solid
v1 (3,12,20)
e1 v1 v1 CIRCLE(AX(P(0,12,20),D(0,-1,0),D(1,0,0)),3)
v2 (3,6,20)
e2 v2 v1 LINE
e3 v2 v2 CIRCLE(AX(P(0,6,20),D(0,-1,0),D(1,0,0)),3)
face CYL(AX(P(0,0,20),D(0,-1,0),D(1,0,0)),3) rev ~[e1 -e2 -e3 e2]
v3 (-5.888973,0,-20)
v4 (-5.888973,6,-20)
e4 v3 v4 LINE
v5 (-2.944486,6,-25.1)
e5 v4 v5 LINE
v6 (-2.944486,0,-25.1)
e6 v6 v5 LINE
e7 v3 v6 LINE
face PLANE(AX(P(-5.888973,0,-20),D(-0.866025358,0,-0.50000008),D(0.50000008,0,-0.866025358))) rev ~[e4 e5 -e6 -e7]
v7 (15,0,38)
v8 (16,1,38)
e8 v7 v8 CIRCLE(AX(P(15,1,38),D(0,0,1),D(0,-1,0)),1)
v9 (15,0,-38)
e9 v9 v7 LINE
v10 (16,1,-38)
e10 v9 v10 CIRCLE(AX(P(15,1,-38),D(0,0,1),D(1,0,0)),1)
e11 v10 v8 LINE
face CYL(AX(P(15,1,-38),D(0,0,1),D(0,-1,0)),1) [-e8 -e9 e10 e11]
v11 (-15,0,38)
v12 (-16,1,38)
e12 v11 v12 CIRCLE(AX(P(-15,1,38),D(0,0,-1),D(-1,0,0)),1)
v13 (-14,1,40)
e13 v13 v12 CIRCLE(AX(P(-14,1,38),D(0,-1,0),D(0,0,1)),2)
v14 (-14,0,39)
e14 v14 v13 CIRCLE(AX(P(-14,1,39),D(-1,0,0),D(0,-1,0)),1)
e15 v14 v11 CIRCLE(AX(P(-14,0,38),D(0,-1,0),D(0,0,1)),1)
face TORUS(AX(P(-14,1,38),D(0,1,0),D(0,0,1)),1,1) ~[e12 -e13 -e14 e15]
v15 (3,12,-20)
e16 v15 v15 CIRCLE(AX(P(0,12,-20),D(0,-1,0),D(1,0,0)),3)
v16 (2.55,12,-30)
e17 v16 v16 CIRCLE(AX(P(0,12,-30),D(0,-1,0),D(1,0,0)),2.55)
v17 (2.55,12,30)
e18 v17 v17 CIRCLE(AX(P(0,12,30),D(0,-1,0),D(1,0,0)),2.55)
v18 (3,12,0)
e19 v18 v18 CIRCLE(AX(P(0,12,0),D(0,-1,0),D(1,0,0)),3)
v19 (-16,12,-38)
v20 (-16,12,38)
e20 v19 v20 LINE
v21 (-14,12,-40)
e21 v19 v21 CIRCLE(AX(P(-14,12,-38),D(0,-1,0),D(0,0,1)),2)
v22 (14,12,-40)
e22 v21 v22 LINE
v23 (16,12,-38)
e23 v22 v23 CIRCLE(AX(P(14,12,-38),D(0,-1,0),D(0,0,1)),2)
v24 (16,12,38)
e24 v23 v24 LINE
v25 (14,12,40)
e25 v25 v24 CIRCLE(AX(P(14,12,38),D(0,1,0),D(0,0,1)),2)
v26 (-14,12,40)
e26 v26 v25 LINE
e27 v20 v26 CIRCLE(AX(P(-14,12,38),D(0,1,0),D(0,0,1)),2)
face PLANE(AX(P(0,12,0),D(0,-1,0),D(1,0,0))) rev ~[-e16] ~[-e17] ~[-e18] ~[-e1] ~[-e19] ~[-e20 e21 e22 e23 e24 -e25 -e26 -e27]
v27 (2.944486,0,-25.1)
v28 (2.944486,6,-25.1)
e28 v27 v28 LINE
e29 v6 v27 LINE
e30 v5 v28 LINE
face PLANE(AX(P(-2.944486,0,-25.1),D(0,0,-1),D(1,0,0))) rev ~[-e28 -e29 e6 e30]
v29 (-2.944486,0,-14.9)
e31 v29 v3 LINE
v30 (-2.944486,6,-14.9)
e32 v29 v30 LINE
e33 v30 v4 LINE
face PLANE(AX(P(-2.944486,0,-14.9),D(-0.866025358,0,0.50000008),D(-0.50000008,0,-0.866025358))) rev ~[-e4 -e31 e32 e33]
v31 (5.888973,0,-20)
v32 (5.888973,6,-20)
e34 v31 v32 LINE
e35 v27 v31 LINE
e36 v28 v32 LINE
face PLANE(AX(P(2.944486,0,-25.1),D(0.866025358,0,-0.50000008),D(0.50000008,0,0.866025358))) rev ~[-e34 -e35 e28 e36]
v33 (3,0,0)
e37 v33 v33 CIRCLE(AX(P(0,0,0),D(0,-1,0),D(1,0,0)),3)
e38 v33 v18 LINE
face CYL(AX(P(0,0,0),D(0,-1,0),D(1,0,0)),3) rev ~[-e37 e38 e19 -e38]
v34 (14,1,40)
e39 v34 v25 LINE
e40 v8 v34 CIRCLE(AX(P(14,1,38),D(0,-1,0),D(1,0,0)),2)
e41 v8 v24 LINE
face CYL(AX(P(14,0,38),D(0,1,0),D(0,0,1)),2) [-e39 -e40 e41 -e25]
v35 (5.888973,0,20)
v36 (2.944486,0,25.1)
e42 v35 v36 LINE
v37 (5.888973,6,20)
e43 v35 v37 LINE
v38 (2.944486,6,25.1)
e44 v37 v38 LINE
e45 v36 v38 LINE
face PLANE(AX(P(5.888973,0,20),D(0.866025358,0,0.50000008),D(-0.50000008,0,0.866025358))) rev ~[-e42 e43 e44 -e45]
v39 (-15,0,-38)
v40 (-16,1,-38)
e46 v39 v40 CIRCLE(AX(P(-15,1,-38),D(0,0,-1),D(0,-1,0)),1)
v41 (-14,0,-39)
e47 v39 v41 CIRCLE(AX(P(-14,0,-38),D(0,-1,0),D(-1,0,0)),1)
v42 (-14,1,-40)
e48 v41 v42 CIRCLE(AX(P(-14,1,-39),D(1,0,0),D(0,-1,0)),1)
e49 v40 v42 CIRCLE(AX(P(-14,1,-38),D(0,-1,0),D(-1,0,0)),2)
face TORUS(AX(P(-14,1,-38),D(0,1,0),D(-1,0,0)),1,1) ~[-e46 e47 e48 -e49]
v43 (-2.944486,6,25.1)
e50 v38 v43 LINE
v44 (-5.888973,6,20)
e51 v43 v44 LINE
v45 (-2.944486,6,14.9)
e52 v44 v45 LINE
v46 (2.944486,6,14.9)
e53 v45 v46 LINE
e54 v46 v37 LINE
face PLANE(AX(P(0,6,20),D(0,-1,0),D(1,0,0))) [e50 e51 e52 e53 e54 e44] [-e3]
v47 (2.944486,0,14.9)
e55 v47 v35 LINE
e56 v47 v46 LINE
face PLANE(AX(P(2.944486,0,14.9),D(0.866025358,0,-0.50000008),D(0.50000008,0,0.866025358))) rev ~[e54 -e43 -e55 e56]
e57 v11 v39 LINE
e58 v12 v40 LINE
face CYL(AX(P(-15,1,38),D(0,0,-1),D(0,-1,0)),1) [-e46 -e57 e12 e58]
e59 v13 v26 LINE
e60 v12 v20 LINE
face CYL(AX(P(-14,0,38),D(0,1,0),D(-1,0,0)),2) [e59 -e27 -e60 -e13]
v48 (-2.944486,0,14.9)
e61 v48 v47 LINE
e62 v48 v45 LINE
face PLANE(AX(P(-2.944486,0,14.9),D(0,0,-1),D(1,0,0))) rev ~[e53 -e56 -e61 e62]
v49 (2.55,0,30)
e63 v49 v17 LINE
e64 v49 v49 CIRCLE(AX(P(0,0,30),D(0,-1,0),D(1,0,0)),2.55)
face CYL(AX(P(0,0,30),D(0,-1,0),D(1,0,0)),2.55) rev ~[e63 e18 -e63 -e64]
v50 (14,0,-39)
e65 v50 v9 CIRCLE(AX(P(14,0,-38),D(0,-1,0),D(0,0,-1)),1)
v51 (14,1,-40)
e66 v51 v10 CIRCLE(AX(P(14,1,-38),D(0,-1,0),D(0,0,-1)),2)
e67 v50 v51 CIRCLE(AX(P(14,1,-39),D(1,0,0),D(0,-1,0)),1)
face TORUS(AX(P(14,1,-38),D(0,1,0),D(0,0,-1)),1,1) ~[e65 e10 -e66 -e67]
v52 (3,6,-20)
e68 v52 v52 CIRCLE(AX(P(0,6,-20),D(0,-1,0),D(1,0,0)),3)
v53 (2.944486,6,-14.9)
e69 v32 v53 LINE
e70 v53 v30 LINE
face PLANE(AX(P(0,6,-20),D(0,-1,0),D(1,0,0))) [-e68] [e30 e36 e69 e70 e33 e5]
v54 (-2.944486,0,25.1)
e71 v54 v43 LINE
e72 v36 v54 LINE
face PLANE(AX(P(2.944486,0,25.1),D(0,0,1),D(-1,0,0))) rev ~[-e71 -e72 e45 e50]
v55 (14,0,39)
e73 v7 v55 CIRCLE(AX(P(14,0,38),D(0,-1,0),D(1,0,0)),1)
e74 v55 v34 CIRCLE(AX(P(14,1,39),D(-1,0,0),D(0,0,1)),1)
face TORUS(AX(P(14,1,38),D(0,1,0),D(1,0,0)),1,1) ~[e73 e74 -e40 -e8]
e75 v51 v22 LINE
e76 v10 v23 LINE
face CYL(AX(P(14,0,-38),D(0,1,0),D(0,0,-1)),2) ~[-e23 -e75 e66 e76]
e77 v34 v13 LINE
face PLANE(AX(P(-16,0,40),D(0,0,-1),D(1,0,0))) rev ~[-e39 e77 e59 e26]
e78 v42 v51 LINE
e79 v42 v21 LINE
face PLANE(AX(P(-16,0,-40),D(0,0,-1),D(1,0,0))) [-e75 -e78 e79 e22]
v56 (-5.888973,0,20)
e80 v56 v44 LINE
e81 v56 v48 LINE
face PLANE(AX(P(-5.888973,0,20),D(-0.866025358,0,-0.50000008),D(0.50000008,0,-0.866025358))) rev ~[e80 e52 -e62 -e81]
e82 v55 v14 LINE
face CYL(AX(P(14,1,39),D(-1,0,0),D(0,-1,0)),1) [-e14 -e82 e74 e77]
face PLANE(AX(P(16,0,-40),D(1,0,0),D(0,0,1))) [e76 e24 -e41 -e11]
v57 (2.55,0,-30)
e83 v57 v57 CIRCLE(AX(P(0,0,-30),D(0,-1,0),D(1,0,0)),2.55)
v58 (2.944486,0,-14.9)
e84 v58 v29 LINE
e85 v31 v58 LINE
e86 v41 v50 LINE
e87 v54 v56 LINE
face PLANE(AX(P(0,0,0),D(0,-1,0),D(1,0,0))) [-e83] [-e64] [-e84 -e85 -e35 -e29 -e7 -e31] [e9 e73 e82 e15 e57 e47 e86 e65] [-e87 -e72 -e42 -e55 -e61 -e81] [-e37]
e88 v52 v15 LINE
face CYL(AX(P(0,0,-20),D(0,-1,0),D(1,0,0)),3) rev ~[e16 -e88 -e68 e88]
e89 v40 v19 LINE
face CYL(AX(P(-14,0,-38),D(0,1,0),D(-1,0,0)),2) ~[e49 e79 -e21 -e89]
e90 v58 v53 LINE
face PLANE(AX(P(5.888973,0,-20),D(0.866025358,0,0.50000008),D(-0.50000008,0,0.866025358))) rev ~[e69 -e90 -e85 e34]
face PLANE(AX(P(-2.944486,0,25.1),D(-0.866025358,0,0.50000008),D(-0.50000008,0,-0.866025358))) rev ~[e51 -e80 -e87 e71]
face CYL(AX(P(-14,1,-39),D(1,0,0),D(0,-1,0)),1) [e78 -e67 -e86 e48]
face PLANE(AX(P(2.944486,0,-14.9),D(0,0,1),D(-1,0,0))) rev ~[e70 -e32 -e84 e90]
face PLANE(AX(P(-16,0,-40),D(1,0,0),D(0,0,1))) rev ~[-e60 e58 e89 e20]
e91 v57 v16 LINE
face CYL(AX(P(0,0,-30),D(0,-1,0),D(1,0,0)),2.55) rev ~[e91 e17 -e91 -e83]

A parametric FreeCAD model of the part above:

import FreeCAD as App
import Part
import Sketcher

V = App.Vector
Q = App.Units.Quantity


def edges_at(feature, points):
    """Names of the edges that pass closest to the given points."""
    edges = feature.Shape.Edges
    near = lambda p: min(range(len(edges)), key=lambda i: edges[i].distToShape(Part.Vertex(*p))[0])
    return sorted({f"Edge{near(p) + 1}" for p in points})


def add_polygon(sketch, points):
    """Adds a closed chain of lines whose ends are joined by coincident constraints."""
    first, n = sketch.GeometryCount, len(points)
    for a, b in zip(points, points[1:] + points[:1]):
        sketch.addGeometry(Part.LineSegment(App.Vector(*a, 0), App.Vector(*b, 0)), False)
    for i in range(n):
        sketch.addConstraint(Sketcher.Constraint("Coincident", first + i, 2, first + (i + 1) % n, 1))

doc = App.newDocument("Part")
params = doc.addObject("Spreadsheet::Sheet", "Params")
for row, (alias, value) in enumerate([
    ("sketch1_width", "32 mm"),
    ("sketch1_height", "80 mm"),
    ("pad1_length", "12 mm"),
    ("sketch2_diameter", "5.1 mm"),
    ("pocket1_length", "25 mm"),
    ("sketch3_diameter", "6 mm"),
    ("sketch4_diameter", "6 mm"),
    ("pocket3_length", "25 mm"),
    ("fillet_radius", "2 mm"),
    ("fillet2_radius", "1 mm"),
    ("pocket4_length", "6 mm"),
], start=1):
    params.set(f"A{row}", alias)
    params.set(f"B{row}", "=" + value)
    params.setAlias(f"B{row}", alias)

body = doc.addObject("PartDesign::Body", "Body")

sketch1 = body.newObject("Sketcher::SketchObject", "Sketch")
sketch1.AttachmentSupport = (doc.getObject("XZ_Plane"), [""])
sketch1.MapMode = "FlatFace"
add_polygon(sketch1, [(-16, 40), (-16, -40), (16, -40), (16, 40)])
sketch1.addConstraint(Sketcher.Constraint("Vertical", 0))
sketch1.addConstraint(Sketcher.Constraint("Horizontal", 1))
sketch1.addConstraint(Sketcher.Constraint("Vertical", 2))
sketch1.addConstraint(Sketcher.Constraint("Horizontal", 3))
sketch1.addConstraint(Sketcher.Constraint("Symmetric", 0, 2, 2, 2, -1, 1))
sketch1.addConstraint(Sketcher.Constraint("DistanceX", 1, 1, 1, 2, 32.0))
sketch1.addConstraint(Sketcher.Constraint("DistanceY", 0, 2, 0, 1, 80.0))
sketch1.setExpression("Constraints[9]", "Params.sketch1_width")
sketch1.setExpression("Constraints[10]", "Params.sketch1_height")
pad1 = body.newObject("PartDesign::Pad", "Pad")
pad1.Profile = sketch1
pad1.setExpression("Length", "Params.pad1_length")
pad1.Reversed = True

sketch2 = body.newObject("Sketcher::SketchObject", "Sketch001")
sketch2.AttachmentSupport = (doc.getObject("XZ_Plane"), [""])
sketch2.MapMode = "FlatFace"
sketch2.addGeometry(Part.Circle(V(0, 30, 0), V(0, 0, 1), 2.5), False)
sketch2.addGeometry(Part.Circle(V(0, -30, 0), V(0, 0, 1), 2.5), False)
sketch2.addConstraint(Sketcher.Constraint("Equal", 0, 1))
sketch2.addConstraint(Sketcher.Constraint("Symmetric", 0, 3, 1, 3, -1, 1))
sketch2.addConstraint(Sketcher.Constraint("PointOnObject", 0, 3, -2))
sketch2.addConstraint(Sketcher.Constraint("Diameter", 0, 5.1))
sketch2.addConstraint(Sketcher.Constraint("DistanceY", -1, 1, 0, 3, 30.0))
sketch2.setExpression("Constraints[3]", "Params.sketch2_diameter")
pocket1 = body.newObject("PartDesign::Pocket", "Pocket")
pocket1.Profile = sketch2
pocket1.setExpression("Length", "Params.pocket1_length")

sketch3 = body.newObject("Sketcher::SketchObject", "Sketch002")
sketch3.AttachmentSupport = (doc.getObject("XZ_Plane"), [""])
sketch3.MapMode = "FlatFace"
sketch3.addGeometry(Part.Circle(V(0, 20, 0), V(0, 0, 1), 3), False)
sketch3.addGeometry(Part.Circle(V(0, -20, 0), V(0, 0, 1), 3), False)
sketch3.addConstraint(Sketcher.Constraint("Equal", 0, 1))
sketch3.addConstraint(Sketcher.Constraint("Symmetric", 0, 3, 1, 3, -1, 1))
sketch3.addConstraint(Sketcher.Constraint("PointOnObject", 0, 3, -2))
sketch3.addConstraint(Sketcher.Constraint("Diameter", 0, 6.0))
sketch3.addConstraint(Sketcher.Constraint("DistanceY", -1, 1, 0, 3, 20.0))
sketch3.setExpression("Constraints[3]", "Params.sketch3_diameter")
pocket2 = body.newObject("PartDesign::Pocket", "Pocket001")
pocket2.Profile = sketch3
pocket2.Type = "ThroughAll"

sketch4 = body.newObject("Sketcher::SketchObject", "Sketch003")
sketch4.AttachmentSupport = (doc.getObject("XZ_Plane"), [""])
sketch4.MapMode = "FlatFace"
sketch4.addGeometry(Part.Circle(V(0, 0, 0), V(0, 0, 1), 3), False)
sketch4.addConstraint(Sketcher.Constraint("Coincident", 0, 3, -1, 1))
sketch4.addConstraint(Sketcher.Constraint("Diameter", 0, 6.0))
sketch4.setExpression("Constraints[1]", "Params.sketch4_diameter")
pocket3 = body.newObject("PartDesign::Pocket", "Pocket002")
pocket3.Profile = sketch4
pocket3.setExpression("Length", "Params.pocket3_length")
doc.recompute()

fillet = body.newObject("PartDesign::Fillet", "Fillet")
fillet.Base = (pocket3, edges_at(pocket3, [
    (-16, 6, 40),
    (16, 6, 40),
    (16, 6, -40),
    (-16, 6, -40),
]))
fillet.setExpression("Radius", "Params.fillet_radius")
doc.recompute()

fillet2 = body.newObject("PartDesign::Fillet", "Fillet001")
fillet2.Base = (fillet, edges_at(fillet, [
    (0, 0, -40),
    (-15.414, 0, -39.414),
    (-16, 0, 0),
    (-15.414, 0, 39.414),
    (0, 0, 40),
    (15.414, 0, 39.414),
    (16, 0, 0),
    (15.414, 0, -39.414),
]))
fillet2.setExpression("Radius", "Params.fillet2_radius")

sketch5 = body.newObject("Sketcher::SketchObject", "Sketch004")
sketch5.AttachmentSupport = (doc.getObject("XZ_Plane"), [""])
sketch5.MapMode = "FlatFace"
add_polygon(sketch5, [(3, 25), (-3, 25), (-6, 20), (-3, 15), (3, 15), (6, 20)])
add_polygon(sketch5, [(3, -15), (-3, -15), (-6, -20), (-3, -25), (3, -25), (6, -20)])
sketch5.addConstraint(Sketcher.Constraint("Horizontal", 0))
sketch5.addConstraint(Sketcher.Constraint("Horizontal", 3))
sketch5.addConstraint(Sketcher.Constraint("Horizontal", 6))
sketch5.addConstraint(Sketcher.Constraint("Horizontal", 9))
sketch5.addConstraint(Sketcher.Constraint("Symmetric", 3, 2, 6, 2, -1, 1))
sketch5.addConstraint(Sketcher.Constraint("Symmetric", 4, 2, 7, 2, -1, 1))
sketch5.addConstraint(Sketcher.Constraint("Symmetric", 5, 2, 8, 2, -1, 1))
sketch5.addConstraint(Sketcher.Constraint("Symmetric", 1, 2, 10, 2, -1, 1))
sketch5.addConstraint(Sketcher.Constraint("Symmetric", 1, 2, 4, 2, -2))
sketch5.addConstraint(Sketcher.Constraint("Parallel", 1, 4))
sketch5.addConstraint(Sketcher.Constraint("Parallel", 2, 5))
sketch5.addConstraint(Sketcher.Constraint("Parallel", 7, 10))
sketch5.addConstraint(Sketcher.Constraint("Parallel", 8, 11))
sketch5.addConstraint(Sketcher.Constraint("Vertical", 0, 2, 2, 2))
sketch5.addConstraint(Sketcher.Constraint("Vertical", 3, 2, 5, 2))
sketch5.addConstraint(Sketcher.Constraint("Angle", 1, Q("-120.000005 deg")))
sketch5.addConstraint(Sketcher.Constraint("DistanceY", -1, 1, 1, 2, 20.0))
sketch5.addConstraint(Sketcher.Constraint("DistanceY", -1, 1, 0, 2, 25.1))
sketch5.addConstraint(Sketcher.Constraint("DistanceX", 0, 2, 0, 1, 5.888972))
pocket4 = body.newObject("PartDesign::Pocket", "Pocket003")
pocket4.Profile = sketch5
pocket4.setExpression("Length", "Params.pocket4_length")

doc.recompute()
